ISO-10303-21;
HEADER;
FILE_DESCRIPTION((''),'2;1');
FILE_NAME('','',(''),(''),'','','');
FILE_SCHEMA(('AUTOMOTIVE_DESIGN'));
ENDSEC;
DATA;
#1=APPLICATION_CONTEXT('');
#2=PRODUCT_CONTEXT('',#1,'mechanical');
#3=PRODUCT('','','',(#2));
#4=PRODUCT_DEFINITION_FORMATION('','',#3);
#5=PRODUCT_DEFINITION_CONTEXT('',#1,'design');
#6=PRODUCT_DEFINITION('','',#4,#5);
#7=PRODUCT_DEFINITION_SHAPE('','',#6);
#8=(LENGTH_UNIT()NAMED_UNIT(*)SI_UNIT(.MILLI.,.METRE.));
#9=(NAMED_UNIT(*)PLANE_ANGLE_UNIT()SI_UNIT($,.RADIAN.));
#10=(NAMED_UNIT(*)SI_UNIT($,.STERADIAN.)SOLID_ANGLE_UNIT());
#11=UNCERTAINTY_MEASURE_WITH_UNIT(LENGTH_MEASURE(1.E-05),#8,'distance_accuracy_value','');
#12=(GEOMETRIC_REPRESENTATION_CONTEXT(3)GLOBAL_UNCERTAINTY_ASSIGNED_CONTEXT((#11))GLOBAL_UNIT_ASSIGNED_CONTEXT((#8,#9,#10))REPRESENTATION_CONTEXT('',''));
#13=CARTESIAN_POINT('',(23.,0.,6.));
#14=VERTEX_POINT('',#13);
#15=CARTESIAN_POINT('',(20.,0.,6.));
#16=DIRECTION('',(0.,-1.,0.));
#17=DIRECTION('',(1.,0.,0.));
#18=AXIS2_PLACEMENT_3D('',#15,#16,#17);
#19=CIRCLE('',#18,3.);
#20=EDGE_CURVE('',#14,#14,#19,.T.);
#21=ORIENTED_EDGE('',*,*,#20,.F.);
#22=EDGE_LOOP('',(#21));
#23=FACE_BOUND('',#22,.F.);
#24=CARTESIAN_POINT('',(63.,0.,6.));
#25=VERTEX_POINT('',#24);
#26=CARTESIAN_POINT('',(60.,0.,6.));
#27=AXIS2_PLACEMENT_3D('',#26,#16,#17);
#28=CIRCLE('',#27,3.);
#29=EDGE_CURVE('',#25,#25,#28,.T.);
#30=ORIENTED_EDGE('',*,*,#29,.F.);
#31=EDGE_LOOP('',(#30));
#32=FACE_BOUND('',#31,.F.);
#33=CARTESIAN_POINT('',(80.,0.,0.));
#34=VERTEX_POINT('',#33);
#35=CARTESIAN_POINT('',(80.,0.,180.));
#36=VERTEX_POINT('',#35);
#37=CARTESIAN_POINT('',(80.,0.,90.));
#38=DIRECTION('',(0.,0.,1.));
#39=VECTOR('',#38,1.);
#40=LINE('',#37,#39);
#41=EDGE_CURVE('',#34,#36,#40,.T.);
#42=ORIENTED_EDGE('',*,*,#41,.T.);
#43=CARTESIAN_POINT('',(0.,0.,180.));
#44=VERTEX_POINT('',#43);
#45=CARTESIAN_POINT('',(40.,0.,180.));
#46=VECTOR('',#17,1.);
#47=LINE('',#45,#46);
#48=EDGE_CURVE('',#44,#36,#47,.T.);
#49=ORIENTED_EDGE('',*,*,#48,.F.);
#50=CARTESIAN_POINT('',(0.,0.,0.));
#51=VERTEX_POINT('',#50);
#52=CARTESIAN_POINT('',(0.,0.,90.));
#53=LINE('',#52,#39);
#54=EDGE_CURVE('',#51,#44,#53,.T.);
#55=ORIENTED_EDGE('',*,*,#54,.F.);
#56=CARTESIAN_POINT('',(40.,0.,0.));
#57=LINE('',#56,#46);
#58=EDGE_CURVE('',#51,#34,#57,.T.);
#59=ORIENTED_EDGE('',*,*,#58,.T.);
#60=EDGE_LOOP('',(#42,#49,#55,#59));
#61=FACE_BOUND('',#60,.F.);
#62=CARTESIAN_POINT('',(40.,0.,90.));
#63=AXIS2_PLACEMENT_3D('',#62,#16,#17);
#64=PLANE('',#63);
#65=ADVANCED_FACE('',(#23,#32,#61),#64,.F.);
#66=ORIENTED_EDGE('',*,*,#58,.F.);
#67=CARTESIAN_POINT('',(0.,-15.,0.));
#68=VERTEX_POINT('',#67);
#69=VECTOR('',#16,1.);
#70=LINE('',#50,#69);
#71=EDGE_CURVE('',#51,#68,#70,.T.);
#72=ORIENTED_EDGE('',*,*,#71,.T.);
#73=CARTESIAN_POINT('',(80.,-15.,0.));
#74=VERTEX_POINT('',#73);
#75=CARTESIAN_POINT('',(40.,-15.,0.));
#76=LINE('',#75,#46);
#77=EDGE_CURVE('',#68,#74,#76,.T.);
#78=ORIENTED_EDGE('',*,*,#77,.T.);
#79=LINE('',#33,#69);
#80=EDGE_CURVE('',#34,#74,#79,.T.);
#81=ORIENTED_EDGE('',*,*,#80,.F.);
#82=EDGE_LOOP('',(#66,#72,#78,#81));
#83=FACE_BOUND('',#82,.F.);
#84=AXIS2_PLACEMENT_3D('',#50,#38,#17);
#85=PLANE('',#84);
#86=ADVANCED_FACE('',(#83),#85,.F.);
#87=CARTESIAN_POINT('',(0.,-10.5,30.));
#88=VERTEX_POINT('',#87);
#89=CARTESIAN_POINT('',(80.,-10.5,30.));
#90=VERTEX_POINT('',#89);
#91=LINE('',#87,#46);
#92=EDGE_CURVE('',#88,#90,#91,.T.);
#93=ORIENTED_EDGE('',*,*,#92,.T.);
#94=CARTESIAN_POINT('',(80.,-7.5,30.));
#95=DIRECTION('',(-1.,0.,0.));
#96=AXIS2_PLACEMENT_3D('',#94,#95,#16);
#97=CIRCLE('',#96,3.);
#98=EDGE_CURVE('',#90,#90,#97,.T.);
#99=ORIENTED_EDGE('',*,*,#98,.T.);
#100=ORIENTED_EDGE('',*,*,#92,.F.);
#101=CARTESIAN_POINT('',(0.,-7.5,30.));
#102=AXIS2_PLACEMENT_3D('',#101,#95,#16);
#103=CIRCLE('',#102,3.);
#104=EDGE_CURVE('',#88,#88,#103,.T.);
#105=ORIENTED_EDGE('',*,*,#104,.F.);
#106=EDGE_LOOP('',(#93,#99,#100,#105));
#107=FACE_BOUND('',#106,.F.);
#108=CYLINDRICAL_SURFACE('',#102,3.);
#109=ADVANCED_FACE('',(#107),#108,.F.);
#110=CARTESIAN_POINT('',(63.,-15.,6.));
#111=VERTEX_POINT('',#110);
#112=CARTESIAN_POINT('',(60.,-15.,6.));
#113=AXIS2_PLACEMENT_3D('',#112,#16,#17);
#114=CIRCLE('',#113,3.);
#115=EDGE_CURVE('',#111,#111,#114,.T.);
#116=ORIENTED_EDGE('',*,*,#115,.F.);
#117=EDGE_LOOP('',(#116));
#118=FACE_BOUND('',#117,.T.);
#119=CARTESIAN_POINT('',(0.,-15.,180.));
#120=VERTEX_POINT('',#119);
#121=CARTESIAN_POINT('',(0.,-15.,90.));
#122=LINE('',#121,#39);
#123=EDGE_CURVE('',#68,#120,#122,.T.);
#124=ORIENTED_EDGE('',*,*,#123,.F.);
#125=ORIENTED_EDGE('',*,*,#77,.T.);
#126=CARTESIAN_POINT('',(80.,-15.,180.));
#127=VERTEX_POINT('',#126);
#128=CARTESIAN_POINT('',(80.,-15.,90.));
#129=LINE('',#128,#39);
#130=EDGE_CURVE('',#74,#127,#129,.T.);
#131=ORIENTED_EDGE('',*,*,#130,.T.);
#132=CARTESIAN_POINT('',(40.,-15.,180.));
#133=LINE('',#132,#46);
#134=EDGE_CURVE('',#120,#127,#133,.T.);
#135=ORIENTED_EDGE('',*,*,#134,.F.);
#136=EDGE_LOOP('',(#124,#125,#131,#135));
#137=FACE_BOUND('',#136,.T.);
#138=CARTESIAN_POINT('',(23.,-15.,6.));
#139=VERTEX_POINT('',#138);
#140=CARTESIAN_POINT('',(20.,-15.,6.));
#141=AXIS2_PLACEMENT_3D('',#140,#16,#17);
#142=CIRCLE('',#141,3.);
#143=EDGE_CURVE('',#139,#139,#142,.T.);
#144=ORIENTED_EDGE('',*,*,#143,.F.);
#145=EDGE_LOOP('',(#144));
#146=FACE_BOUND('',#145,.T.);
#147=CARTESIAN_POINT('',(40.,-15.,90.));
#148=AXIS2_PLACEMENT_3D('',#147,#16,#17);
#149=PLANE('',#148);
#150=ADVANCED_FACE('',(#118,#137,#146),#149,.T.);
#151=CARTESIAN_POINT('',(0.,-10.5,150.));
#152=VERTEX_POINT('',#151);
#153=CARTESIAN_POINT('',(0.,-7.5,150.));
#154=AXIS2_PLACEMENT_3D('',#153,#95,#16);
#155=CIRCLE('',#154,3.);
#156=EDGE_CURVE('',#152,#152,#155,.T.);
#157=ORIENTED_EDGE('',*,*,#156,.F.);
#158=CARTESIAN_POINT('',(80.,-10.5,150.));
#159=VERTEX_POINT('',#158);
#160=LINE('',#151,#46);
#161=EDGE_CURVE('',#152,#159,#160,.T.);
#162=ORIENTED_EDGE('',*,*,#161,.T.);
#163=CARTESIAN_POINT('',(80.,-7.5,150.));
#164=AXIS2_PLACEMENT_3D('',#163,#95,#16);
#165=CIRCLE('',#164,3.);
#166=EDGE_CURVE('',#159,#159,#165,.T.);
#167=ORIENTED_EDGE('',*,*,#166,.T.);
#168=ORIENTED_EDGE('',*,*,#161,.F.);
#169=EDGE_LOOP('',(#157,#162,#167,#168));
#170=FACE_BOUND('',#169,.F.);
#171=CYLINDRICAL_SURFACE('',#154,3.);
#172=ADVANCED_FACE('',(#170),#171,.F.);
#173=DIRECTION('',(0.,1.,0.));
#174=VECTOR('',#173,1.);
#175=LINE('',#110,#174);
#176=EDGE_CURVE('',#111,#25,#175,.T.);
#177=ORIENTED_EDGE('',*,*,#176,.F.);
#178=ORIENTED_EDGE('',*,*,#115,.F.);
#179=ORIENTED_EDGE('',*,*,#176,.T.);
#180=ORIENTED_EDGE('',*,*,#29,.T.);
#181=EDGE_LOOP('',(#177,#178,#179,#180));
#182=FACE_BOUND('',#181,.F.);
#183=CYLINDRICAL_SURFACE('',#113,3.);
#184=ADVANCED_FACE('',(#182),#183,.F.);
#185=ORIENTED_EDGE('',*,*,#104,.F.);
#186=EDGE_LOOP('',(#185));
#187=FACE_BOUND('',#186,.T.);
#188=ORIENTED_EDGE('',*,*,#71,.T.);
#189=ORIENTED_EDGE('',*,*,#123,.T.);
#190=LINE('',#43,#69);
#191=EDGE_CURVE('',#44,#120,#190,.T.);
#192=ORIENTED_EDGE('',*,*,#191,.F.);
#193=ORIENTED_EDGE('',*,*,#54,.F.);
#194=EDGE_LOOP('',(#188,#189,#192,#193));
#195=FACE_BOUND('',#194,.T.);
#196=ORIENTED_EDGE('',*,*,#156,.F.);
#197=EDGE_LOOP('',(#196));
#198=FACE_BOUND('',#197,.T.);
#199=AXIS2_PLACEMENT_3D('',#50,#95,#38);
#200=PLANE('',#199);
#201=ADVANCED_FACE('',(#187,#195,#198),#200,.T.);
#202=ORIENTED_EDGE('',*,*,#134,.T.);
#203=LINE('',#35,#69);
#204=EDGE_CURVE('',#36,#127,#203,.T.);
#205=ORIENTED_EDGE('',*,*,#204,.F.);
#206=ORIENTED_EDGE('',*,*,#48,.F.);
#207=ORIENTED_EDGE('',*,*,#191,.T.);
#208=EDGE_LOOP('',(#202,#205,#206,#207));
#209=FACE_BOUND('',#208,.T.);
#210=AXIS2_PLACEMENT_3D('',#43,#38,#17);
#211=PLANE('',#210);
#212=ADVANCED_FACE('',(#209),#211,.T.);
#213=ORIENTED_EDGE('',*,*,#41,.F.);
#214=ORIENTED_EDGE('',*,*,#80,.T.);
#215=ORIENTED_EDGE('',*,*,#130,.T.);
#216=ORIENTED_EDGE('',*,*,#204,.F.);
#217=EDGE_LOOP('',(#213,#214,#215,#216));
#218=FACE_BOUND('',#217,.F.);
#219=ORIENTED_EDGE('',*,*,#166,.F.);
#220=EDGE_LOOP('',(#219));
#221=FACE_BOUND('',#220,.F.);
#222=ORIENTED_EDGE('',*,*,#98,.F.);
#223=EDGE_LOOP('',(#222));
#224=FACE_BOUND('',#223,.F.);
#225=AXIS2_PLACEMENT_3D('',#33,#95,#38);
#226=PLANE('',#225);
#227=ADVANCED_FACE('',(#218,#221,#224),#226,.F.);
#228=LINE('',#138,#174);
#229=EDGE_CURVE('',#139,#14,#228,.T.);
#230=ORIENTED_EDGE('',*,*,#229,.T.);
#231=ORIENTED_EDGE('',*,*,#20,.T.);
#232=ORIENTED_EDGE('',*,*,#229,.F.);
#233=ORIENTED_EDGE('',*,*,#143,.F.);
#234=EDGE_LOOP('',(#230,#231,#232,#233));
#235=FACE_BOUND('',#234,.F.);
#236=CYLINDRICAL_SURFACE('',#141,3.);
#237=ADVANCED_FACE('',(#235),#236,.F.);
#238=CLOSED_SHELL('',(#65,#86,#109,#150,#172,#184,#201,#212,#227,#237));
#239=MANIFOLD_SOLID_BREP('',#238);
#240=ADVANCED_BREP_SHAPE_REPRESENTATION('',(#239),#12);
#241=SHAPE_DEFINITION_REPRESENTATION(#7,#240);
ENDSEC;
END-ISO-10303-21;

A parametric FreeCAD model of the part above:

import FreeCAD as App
import Part
import Sketcher
from FreeCAD import Vector
Q = App.Units.Quantity

doc = App.newDocument("Part")
body = doc.addObject("PartDesign::Body", "Body")

sketch1 = body.newObject("Sketcher::SketchObject", "Sketch")
sketch1.AttachmentSupport = (doc.getObject("XZ_Plane"), [""])
sketch1.MapMode = "FlatFace"
sketch1.addGeometry([
    Part.LineSegment(Vector(0, 180, 0), Vector(0, 0, 0)),
    Part.LineSegment(Vector(0, 0, 0), Vector(80, 0, 0)),
    Part.LineSegment(Vector(80, 0, 0), Vector(80, 180, 0)),
    Part.LineSegment(Vector(80, 180, 0), Vector(0, 180, 0)),
], False)
sketch1.addConstraint([
    Sketcher.Constraint("Coincident", 0, 2, 1, 1),
    Sketcher.Constraint("Coincident", 1, 2, 2, 1),
    Sketcher.Constraint("Coincident", 2, 2, 3, 1),
    Sketcher.Constraint("Coincident", 3, 2, 0, 1),
    Sketcher.Constraint("Vertical", 0),
    Sketcher.Constraint("Horizontal", 1),
    Sketcher.Constraint("Vertical", 2),
    Sketcher.Constraint("Horizontal", 3),
    Sketcher.Constraint("Coincident", 0, 2, -1, 1),
    Sketcher.Constraint("DistanceX", 1, 1, 1, 2, Q("80 mm")),
    Sketcher.Constraint("DistanceY", 0, 2, 0, 1, Q("180 mm")),
])
pad1 = body.newObject("PartDesign::Pad", "Pad")
pad1.Profile = sketch1
pad1.Length = 15

sketch2 = body.newObject("Sketcher::SketchObject", "Sketch001")
sketch2.AttachmentSupport = (doc.getObject("XZ_Plane"), [""])
sketch2.MapMode = "FlatFace"
sketch2.AttachmentOffset = App.Placement(Vector(0, 0, 15), App.Rotation())
sketch2.addGeometry([
    Part.Circle(Vector(60, 6, 0), Vector(0, 0, 1), 3),
    Part.Circle(Vector(20, 6, 0), Vector(0, 0, 1), 3),
], False)
sketch2.addConstraint([
    Sketcher.Constraint("Equal", 0, 1),
    Sketcher.Constraint("Horizontal", 0, 3, 1, 3),
    Sketcher.Constraint("Diameter", 0, Q("6 mm")),
    Sketcher.Constraint("DistanceX", -1, 1, 0, 3, Q("60 mm")),
    Sketcher.Constraint("DistanceY", -1, 1, 0, 3, Q("6 mm")),
    Sketcher.Constraint("DistanceX", -1, 1, 1, 3, Q("20 mm")),
])
pocket1 = body.newObject("PartDesign::Pocket", "Pocket")
pocket1.Profile = sketch2
pocket1.Type = "ThroughAll"

sketch3 = body.newObject("Sketcher::SketchObject", "Sketch002")
sketch3.AttachmentSupport = (doc.getObject("YZ_Plane"), [""])
sketch3.MapMode = "FlatFace"
sketch3.addGeometry([
    Part.Circle(Vector(-7.5, 30, 0), Vector(0, 0, 1), 3),
    Part.Circle(Vector(-7.5, 150, 0), Vector(0, 0, 1), 3),
], False)
sketch3.addConstraint([
    Sketcher.Constraint("Equal", 0, 1),
    Sketcher.Constraint("Vertical", 0, 3, 1, 3),
    Sketcher.Constraint("Diameter", 0, Q("6 mm")),
    Sketcher.Constraint("DistanceY", -1, 1, 0, 3, Q("30 mm")),
    Sketcher.Constraint("DistanceY", -1, 1, 1, 3, Q("150 mm")),
    Sketcher.Constraint("DistanceX", 0, 3, -1, 1, Q("7.5 mm")),
])
pocket2 = body.newObject("PartDesign::Pocket", "Pocket001")
pocket2.Profile = sketch3
pocket2.Type = "ThroughAll"
pocket2.Reversed = True

doc.recompute()
